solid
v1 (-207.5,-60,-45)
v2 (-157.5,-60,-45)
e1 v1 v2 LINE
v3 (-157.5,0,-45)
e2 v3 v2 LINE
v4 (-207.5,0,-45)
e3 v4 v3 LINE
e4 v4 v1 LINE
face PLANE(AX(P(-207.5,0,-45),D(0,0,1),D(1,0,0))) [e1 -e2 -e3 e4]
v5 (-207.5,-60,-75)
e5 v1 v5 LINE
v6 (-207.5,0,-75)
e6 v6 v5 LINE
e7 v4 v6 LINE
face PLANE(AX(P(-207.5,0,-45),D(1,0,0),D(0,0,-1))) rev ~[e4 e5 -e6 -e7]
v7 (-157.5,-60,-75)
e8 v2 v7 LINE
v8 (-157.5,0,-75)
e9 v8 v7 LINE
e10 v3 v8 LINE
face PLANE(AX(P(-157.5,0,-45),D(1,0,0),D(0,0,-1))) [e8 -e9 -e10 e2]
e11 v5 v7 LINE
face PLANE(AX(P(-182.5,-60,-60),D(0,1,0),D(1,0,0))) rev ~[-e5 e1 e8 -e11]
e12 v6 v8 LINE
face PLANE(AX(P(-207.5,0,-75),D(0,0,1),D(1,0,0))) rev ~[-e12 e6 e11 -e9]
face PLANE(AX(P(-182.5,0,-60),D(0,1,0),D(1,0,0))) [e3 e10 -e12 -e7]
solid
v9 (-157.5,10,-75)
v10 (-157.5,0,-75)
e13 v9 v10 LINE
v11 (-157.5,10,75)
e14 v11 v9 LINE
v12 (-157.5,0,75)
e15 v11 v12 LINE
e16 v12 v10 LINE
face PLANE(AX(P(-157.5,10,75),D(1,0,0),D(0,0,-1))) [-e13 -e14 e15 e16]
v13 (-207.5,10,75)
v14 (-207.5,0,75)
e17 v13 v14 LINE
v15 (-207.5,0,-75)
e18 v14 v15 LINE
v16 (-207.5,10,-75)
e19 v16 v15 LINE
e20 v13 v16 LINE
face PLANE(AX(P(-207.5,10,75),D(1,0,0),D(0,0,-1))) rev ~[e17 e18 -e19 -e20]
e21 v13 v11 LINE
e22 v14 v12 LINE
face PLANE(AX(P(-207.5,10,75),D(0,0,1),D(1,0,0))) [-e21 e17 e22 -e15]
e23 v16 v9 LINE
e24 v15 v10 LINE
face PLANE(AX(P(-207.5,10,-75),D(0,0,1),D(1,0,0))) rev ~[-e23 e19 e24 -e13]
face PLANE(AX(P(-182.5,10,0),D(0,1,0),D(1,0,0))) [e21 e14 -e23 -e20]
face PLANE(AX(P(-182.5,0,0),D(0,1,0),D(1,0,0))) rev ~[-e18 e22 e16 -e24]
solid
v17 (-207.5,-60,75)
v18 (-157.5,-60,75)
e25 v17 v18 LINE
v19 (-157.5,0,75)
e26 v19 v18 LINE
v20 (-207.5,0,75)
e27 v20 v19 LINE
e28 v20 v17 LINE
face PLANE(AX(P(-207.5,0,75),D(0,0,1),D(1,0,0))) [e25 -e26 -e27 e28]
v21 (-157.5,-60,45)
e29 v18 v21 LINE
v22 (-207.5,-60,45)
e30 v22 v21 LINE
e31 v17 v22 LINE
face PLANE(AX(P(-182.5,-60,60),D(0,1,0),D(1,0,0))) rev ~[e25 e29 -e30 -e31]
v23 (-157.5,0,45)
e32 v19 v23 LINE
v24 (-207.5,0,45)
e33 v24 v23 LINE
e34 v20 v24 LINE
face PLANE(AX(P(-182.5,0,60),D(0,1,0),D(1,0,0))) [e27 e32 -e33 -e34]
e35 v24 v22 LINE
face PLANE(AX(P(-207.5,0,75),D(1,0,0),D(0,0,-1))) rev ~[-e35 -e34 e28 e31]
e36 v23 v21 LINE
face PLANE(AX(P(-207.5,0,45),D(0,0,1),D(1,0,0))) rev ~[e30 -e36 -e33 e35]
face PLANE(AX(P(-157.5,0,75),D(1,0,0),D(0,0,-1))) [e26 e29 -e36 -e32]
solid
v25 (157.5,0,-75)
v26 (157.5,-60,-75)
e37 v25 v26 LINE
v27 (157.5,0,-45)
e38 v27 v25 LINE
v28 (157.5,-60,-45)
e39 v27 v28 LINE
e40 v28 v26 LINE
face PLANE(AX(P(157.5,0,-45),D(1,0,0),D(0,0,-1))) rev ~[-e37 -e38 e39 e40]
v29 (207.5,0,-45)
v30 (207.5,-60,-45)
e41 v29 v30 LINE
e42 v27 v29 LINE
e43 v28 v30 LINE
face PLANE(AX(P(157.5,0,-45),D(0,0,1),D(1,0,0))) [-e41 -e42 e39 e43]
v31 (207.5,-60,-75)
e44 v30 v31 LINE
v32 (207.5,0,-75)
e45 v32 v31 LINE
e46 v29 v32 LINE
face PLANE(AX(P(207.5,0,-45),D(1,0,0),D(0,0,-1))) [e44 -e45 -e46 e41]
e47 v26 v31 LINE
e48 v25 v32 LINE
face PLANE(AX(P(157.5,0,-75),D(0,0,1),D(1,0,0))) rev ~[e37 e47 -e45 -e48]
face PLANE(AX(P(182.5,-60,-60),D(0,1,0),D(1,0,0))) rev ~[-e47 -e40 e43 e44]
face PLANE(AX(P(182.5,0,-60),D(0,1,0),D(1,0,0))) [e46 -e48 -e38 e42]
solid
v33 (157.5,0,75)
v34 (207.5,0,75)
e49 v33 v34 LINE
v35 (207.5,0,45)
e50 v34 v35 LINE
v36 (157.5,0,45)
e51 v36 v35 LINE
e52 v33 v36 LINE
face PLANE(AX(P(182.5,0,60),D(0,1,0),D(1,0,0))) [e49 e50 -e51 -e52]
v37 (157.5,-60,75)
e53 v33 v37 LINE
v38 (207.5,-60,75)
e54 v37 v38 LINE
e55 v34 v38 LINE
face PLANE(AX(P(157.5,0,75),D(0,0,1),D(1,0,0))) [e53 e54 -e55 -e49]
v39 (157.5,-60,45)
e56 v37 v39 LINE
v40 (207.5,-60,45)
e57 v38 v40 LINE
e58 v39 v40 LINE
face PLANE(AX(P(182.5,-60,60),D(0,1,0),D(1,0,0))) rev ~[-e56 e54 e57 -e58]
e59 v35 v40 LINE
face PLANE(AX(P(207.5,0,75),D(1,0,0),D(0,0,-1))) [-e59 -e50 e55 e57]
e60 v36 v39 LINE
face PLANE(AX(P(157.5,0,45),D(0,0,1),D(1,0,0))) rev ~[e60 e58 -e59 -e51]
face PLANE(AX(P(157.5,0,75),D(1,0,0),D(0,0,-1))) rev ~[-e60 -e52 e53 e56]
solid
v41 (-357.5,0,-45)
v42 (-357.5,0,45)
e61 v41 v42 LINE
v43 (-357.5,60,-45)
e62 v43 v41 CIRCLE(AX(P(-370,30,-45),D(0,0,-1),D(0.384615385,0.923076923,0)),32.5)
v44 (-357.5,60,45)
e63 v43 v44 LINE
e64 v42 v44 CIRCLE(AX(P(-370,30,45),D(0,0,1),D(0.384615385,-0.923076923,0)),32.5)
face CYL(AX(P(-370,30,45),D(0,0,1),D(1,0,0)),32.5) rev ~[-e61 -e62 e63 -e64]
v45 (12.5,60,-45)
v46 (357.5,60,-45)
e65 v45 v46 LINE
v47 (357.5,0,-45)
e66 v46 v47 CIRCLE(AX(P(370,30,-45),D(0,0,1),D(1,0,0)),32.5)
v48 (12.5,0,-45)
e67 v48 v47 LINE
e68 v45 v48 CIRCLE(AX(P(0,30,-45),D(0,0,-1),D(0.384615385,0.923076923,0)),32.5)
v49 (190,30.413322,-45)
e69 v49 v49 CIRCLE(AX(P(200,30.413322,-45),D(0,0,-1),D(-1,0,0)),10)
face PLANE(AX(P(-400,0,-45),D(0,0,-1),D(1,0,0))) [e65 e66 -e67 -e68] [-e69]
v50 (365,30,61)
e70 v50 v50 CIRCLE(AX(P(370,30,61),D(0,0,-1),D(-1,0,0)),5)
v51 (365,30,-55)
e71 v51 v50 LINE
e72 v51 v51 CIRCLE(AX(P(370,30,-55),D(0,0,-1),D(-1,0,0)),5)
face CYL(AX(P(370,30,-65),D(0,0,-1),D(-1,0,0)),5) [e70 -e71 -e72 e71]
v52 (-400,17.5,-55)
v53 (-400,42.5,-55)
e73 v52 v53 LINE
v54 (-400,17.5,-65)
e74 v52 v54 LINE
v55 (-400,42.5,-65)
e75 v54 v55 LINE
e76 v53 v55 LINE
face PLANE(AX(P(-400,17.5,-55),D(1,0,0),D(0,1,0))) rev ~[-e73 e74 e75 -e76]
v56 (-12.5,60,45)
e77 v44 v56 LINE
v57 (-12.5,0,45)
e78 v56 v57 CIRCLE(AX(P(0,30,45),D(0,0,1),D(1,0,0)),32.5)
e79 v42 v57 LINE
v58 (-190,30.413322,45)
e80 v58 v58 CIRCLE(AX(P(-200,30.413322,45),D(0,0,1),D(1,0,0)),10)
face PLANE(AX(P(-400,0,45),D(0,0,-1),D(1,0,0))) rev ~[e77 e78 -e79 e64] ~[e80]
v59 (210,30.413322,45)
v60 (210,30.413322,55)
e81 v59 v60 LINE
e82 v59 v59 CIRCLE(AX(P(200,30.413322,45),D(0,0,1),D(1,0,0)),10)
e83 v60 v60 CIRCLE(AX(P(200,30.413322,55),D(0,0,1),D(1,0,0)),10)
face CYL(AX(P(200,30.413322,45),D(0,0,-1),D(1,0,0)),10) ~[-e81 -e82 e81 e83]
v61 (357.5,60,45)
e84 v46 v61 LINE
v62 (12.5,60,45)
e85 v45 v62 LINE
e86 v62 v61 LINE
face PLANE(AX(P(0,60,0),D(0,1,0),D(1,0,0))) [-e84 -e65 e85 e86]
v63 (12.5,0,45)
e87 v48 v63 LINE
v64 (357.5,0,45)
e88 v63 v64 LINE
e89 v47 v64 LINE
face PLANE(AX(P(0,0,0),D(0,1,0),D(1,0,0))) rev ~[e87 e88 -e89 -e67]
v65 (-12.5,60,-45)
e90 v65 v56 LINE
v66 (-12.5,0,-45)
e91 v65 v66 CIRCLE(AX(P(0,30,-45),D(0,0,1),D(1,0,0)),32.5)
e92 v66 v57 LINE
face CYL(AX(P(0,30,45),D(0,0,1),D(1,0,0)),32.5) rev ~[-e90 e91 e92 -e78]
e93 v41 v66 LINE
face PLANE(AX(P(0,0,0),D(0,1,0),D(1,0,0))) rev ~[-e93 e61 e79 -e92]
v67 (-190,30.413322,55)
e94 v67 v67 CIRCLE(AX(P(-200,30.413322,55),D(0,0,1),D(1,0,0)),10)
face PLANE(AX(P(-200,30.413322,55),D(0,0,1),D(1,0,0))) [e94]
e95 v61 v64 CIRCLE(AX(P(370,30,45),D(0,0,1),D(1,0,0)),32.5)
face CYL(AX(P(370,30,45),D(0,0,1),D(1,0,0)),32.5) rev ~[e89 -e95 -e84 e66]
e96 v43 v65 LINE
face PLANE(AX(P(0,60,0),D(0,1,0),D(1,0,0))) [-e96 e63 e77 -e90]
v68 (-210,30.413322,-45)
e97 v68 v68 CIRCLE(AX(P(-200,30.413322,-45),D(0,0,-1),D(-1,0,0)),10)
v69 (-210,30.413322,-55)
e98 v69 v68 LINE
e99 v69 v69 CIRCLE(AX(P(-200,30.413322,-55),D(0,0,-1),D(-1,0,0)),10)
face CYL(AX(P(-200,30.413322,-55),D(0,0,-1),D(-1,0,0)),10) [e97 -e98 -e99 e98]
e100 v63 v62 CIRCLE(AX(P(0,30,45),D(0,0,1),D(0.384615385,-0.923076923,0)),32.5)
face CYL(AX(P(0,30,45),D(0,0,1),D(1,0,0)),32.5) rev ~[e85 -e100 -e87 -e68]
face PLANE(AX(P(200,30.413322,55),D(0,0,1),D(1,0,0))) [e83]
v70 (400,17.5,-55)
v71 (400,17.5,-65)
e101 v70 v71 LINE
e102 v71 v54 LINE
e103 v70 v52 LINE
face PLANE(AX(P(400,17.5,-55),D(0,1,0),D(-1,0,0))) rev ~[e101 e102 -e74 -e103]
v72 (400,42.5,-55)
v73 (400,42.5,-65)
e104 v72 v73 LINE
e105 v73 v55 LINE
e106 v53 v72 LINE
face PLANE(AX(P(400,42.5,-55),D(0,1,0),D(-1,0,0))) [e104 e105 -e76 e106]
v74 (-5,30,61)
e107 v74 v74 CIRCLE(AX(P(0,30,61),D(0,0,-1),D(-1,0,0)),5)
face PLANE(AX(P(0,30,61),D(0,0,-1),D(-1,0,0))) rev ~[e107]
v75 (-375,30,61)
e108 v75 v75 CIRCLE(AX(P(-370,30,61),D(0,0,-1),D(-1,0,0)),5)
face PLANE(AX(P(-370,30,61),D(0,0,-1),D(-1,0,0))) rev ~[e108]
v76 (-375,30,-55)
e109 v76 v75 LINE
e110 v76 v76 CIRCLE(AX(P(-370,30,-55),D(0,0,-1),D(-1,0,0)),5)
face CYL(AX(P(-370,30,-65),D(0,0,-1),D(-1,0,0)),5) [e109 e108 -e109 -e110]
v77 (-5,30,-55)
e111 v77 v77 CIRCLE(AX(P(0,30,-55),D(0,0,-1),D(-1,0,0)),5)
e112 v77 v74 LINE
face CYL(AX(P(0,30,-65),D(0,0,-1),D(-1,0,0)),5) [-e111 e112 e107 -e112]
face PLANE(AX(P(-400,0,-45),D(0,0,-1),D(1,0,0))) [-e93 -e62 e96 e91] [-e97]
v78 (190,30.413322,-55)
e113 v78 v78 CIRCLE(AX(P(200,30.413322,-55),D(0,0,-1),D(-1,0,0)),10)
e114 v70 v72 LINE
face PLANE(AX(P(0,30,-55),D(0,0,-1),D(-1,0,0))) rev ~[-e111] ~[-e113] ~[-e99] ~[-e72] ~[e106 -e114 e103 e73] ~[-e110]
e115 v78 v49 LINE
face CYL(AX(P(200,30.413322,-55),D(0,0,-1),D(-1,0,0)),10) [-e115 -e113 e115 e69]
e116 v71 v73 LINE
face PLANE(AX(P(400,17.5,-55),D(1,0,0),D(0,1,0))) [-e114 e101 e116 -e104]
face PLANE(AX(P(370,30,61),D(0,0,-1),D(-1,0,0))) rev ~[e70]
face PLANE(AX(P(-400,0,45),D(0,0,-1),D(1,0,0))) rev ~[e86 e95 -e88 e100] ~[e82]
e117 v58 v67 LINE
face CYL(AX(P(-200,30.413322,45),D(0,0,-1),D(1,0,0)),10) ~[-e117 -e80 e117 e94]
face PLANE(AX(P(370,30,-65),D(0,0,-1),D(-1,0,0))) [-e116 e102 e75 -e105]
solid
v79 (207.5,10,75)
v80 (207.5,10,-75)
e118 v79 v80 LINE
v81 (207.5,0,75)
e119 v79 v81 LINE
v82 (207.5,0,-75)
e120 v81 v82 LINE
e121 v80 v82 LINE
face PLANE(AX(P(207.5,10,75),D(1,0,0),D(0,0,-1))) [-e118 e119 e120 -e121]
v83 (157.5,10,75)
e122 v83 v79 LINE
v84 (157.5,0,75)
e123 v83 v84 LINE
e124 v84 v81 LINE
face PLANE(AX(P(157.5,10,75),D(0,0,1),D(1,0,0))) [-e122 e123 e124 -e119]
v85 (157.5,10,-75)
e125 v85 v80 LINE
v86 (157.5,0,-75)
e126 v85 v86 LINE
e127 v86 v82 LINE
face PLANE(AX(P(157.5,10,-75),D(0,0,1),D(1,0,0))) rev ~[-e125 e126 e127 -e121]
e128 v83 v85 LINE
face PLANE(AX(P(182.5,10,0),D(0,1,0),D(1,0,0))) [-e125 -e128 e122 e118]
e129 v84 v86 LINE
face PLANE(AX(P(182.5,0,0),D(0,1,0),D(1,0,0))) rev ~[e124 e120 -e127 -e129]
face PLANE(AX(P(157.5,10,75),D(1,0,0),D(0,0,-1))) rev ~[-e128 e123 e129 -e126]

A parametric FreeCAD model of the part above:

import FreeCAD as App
import Part
import Sketcher
Q = App.Units.Quantity


def add_polygon(sketch, points):
    """Adds a closed chain of lines whose ends are joined by coincident constraints."""
    first, n = sketch.GeometryCount, len(points)
    for a, b in zip(points, points[1:] + points[:1]):
        sketch.addGeometry(Part.LineSegment(App.Vector(*a, 0), App.Vector(*b, 0)), False)
    for i in range(n):
        sketch.addConstraint(Sketcher.Constraint("Coincident", first + i, 2, first + (i + 1) % n, 1))

doc = App.newDocument("Part")
body = doc.addObject("PartDesign::Body", "Body")
body.AllowCompound = True

# Sketch on XZ plane
sketch1 = doc.addObject("Sketcher::SketchObject", "Sketch")
body.addObject(sketch1)
sketch1.AttachmentSupport = (doc.XZ_Plane, [""])
sketch1.MapMode = "FlatFace"
add_polygon(sketch1, [(-400, -45), (-400, 45), (400, 45), (400, -45)])  # lines 0-3
sketch1.addConstraint([
    Sketcher.Constraint("Vertical", 0),
    Sketcher.Constraint("Horizontal", 1),
    Sketcher.Constraint("Vertical", 2),
    Sketcher.Constraint("Horizontal", 3),
    Sketcher.Constraint("Symmetric", 0, 2, 2, 2, -1, 1),
    Sketcher.Constraint("DistanceX", 1, 1, 1, 2, Q("800 mm")),
    Sketcher.Constraint("DistanceY", 0, 1, 0, 2, Q("90 mm")),
])
pad1 = doc.addObject("PartDesign::Pad", "Pad")
body.addObject(pad1)
pad1.Profile = sketch1
pad1.Length = 60
pad1.Reversed = True

# Sketch on XY plane
sketch2 = doc.addObject("Sketcher::SketchObject", "Sketch001")
body.addObject(sketch2)
sketch2.AttachmentSupport = (doc.XY_Plane, [""])
sketch2.MapMode = "FlatFace"
sketch2.AttachmentOffset = App.Placement(App.Vector(0, 0, 45), App.Rotation())
sketch2.addGeometry([
    Part.Circle(App.Vector(370, 30, 0), App.Vector(0, 0, 1), 32),
    Part.Circle(App.Vector(-370, 30, 0), App.Vector(0, 0, 1), 32),
    Part.Circle(App.Vector(0, 30, 0), App.Vector(0, 0, 1), 32),
], False)
sketch2.addConstraint([
    Sketcher.Constraint("Equal", 0, 1),
    Sketcher.Constraint("Equal", 1, 2),
    Sketcher.Constraint("Symmetric", 0, 3, 1, 3, -2),
    Sketcher.Constraint("PointOnObject", 2, 3, -2),
    Sketcher.Constraint("Horizontal", 1, 3, 2, 3),
    Sketcher.Constraint("Diameter", 0, Q("65 mm")),
    Sketcher.Constraint("DistanceX", -1, 1, 0, 3, Q("370 mm")),
    Sketcher.Constraint("DistanceY", -1, 1, 0, 3, Q("30 mm")),
])
pocket1 = doc.addObject("PartDesign::Pocket", "Pocket")
body.addObject(pocket1)
pocket1.Profile = sketch2
pocket1.Length = 110
body2 = doc.addObject("PartDesign::Body", "Body001")

# Sketch on XY plane
sketch3 = doc.addObject("Sketcher::SketchObject", "Sketch002")
body2.addObject(sketch3)
sketch3.AttachmentSupport = (doc.getObject("XY_Plane001"), [""])
sketch3.MapMode = "FlatFace"
sketch3.AttachmentOffset = App.Placement(App.Vector(0, 0, -55), App.Rotation())
add_polygon(sketch3, [(400, 42), (400, 18), (-400, 18), (-400, 42)])  # lines 0-3
sketch3.addConstraint([
    Sketcher.Constraint("Vertical", 0),
    Sketcher.Constraint("Horizontal", 1),
    Sketcher.Constraint("Vertical", 2),
    Sketcher.Constraint("Horizontal", 3),
    Sketcher.Constraint("DistanceX", 1, 2, 1, 1, Q("800 mm")),
    Sketcher.Constraint("DistanceY", 0, 2, 0, 1, Q("25 mm")),
    Sketcher.Constraint("DistanceX", -1, 1, 0, 2, Q("400 mm")),
    Sketcher.Constraint("DistanceY", -1, 1, 0, 2, Q("17.5 mm")),
])
pad2 = doc.addObject("PartDesign::Pad", "Pad001")
body2.addObject(pad2)
pad2.Profile = sketch3
pad2.Length = 10
pad2.Reversed = True
body.AllowCompound = True
doc.recompute()

boolean = doc.addObject("PartDesign::Boolean", "Boolean")
body.addObject(boolean)
boolean.Type = "Fuse"
boolean.addObjects([body2])

# Sketch on XY plane
sketch4 = doc.addObject("Sketcher::SketchObject", "Sketch003")
body.addObject(sketch4)
sketch4.AttachmentSupport = (doc.XY_Plane, [""])
sketch4.MapMode = "FlatFace"
sketch4.AttachmentOffset = App.Placement(App.Vector(0, 0, -55), App.Rotation())
sketch4.addGeometry([
    Part.Circle(App.Vector(200, 30, 0), App.Vector(0, 0, 1), 10),
    Part.Circle(App.Vector(-200, 30, 0), App.Vector(0, 0, 1), 10),
], False)
sketch4.addConstraint([
    Sketcher.Constraint("Equal", 0, 1),
    Sketcher.Constraint("Symmetric", 0, 3, 1, 3, -2),
    Sketcher.Constraint("Diameter", 0, Q("20 mm")),
    Sketcher.Constraint("DistanceX", -1, 1, 0, 3, Q("200 mm")),
    Sketcher.Constraint("DistanceY", -1, 1, 0, 3, Q("30.413322 mm")),
])
pad3 = doc.addObject("PartDesign::Pad", "Pad002")
body.addObject(pad3)
pad3.Profile = sketch4
pad3.Length = 20

# Sketch on XY plane
sketch5 = doc.addObject("Sketcher::SketchObject", "Sketch004")
body.addObject(sketch5)
sketch5.AttachmentSupport = (doc.XY_Plane, [""])
sketch5.MapMode = "FlatFace"
sketch5.AttachmentOffset = App.Placement(App.Vector(0, 0, -65), App.Rotation())
sketch5.addGeometry([
    Part.Circle(App.Vector(370, 30, 0), App.Vector(0, 0, 1), 5),
    Part.Circle(App.Vector(0, 30, 0), App.Vector(0, 0, 1), 5),
    Part.Circle(App.Vector(-370, 30, 0), App.Vector(0, 0, 1), 5),
], False)
sketch5.addConstraint([
    Sketcher.Constraint("Equal", 0, 1),
    Sketcher.Constraint("Equal", 1, 2),
    Sketcher.Constraint("Symmetric", 0, 3, 2, 3, -2),
    Sketcher.Constraint("PointOnObject", 1, 3, -2),
    Sketcher.Constraint("Horizontal", 0, 3, 1, 3),
    Sketcher.Constraint("Diameter", 0, Q("10 mm")),
    Sketcher.Constraint("DistanceX", -1, 1, 0, 3, Q("370 mm")),
    Sketcher.Constraint("DistanceY", -1, 1, 0, 3, Q("30 mm")),
])
pad4 = doc.addObject("PartDesign::Pad", "Pad003")
body.addObject(pad4)
pad4.Profile = sketch5
pad4.Length = 126

# Sketch on XY plane
sketch6 = doc.addObject("Sketcher::SketchObject", "Sketch005")
body.addObject(sketch6)
sketch6.AttachmentSupport = (doc.XY_Plane, [""])
sketch6.MapMode = "FlatFace"
sketch6.AttachmentOffset = App.Placement(App.Vector(0, 0, 45), App.Rotation())
sketch6.addGeometry([
    Part.Circle(App.Vector(-200, 30, 0), App.Vector(0, 0, 1), 10),
    Part.Circle(App.Vector(200, 30, 0), App.Vector(0, 0, 1), 10),
], False)
sketch6.addConstraint([
    Sketcher.Constraint("Equal", 0, 1),
    Sketcher.Constraint("Symmetric", 0, 3, 1, 3, -2),
    Sketcher.Constraint("Diameter", 0, Q("20 mm")),
    Sketcher.Constraint("DistanceX", 0, 3, -1, 1, Q("200 mm")),
    Sketcher.Constraint("DistanceY", -1, 1, 0, 3, Q("30.413322 mm")),
])
pad5 = doc.addObject("PartDesign::Pad", "Pad004")
body.addObject(pad5)
pad5.Profile = sketch6
pad5.Length = 10

# Sketch on XZ plane
sketch7 = doc.addObject("Sketcher::SketchObject", "Sketch006")
body.addObject(sketch7)
sketch7.AttachmentSupport = (doc.XZ_Plane, [""])
sketch7.MapMode = "FlatFace"
add_polygon(sketch7, [(376, -52), (376, 53), (415, 53), (415, -52)])  # lines 0-3
add_polygon(sketch7, [(-413, -55), (-413, 53), (-379, 53), (-379, -55)])  # lines 4-7
sketch7.addConstraint([
    Sketcher.Constraint("Vertical", 0),
    Sketcher.Constraint("Horizontal", 1),
    Sketcher.Constraint("Vertical", 2),
    Sketcher.Constraint("Horizontal", 3),
    Sketcher.Constraint("Vertical", 4),
    Sketcher.Constraint("Horizontal", 5),
    Sketcher.Constraint("Vertical", 6),
    Sketcher.Constraint("Horizontal", 7),
    Sketcher.Constraint("Horizontal", 1, 2, 4, 2),
    Sketcher.Constraint("DistanceY", 6, 2, -1, 1, Q("55 mm")),
    Sketcher.Constraint("DistanceY", 4, 1, 4, 2, Q("108.38535 mm")),
    Sketcher.Constraint("DistanceX", 1, 1, 1, 2, Q("38.258946 mm")),
    Sketcher.Constraint("DistanceX", 5, 1, 5, 2, Q("34.499867 mm")),
    Sketcher.Constraint("DistanceY", 0, 1, 0, 2, Q("105.501943 mm")),
    Sketcher.Constraint("DistanceX", -1, 1, 1, 2, Q("414.71685 mm")),
    Sketcher.Constraint("DistanceX", 5, 2, 0, 2, Q("754.962209 mm")),
])
pocket2 = doc.addObject("PartDesign::Pocket", "Pocket001")
body.addObject(pocket2)
pocket2.Profile = sketch7
pocket2.Length = 100
body3 = doc.addObject("PartDesign::Body", "Body002")

# Sketch on XZ plane
sketch8 = doc.addObject("Sketcher::SketchObject", "Sketch007")
body3.addObject(sketch8)
sketch8.AttachmentSupport = (doc.getObject("XZ_Plane002"), [""])
sketch8.MapMode = "FlatFace"
sketch8.AttachmentOffset = App.Placement(App.Vector(0, 0, -10), App.Rotation())
add_polygon(sketch8, [(158, -75), (158, 75), (208, 75), (208, -75)])  # lines 0-3
sketch8.addConstraint([
    Sketcher.Constraint("Vertical", 0),
    Sketcher.Constraint("Horizontal", 1),
    Sketcher.Constraint("Vertical", 2),
    Sketcher.Constraint("Horizontal", 3),
    Sketcher.Constraint("DistanceX", 1, 1, 1, 2, Q("50 mm")),
    Sketcher.Constraint("DistanceY", 0, 1, 0, 2, Q("150 mm")),
    Sketcher.Constraint("DistanceY", -1, 1, 0, 2, Q("75 mm")),
    Sketcher.Constraint("DistanceX", -1, 1, 0, 2, Q("157.5 mm")),
])
pad6 = doc.addObject("PartDesign::Pad", "Pad005")
body3.addObject(pad6)
pad6.Profile = sketch8
pad6.Length = 10
body4 = doc.addObject("PartDesign::Body", "Body003")

# Sketch on XZ plane
sketch9 = doc.addObject("Sketcher::SketchObject", "Sketch008")
body4.addObject(sketch9)
sketch9.AttachmentSupport = (doc.getObject("XZ_Plane003"), [""])
sketch9.MapMode = "FlatFace"
sketch9.AttachmentOffset = App.Placement(App.Vector(0, 0, -10), App.Rotation())
add_polygon(sketch9, [(-208, -75), (-208, 75), (-158, 75), (-158, -75)])  # lines 0-3
sketch9.addConstraint([
    Sketcher.Constraint("Vertical", 0),
    Sketcher.Constraint("Horizontal", 1),
    Sketcher.Constraint("Vertical", 2),
    Sketcher.Constraint("Horizontal", 3),
    Sketcher.Constraint("DistanceX", 1, 1, 1, 2, Q("50 mm")),
    Sketcher.Constraint("DistanceY", 0, 1, 0, 2, Q("150 mm")),
    Sketcher.Constraint("DistanceY", -1, 1, 0, 2, Q("75 mm")),
    Sketcher.Constraint("DistanceX", 0, 2, -1, 1, Q("207.5 mm")),
])
pad7 = doc.addObject("PartDesign::Pad", "Pad006")
body4.addObject(pad7)
pad7.Profile = sketch9
pad7.Length = 10
body5 = doc.addObject("PartDesign::Body", "Body004")

# Sketch on XZ plane
sketch10 = doc.addObject("Sketcher::SketchObject", "Sketch009")
body5.addObject(sketch10)
sketch10.AttachmentSupport = (doc.getObject("XZ_Plane004"), [""])
sketch10.MapMode = "FlatFace"
add_polygon(sketch10, [(-208, 45), (-208, 75), (-158, 75), (-158, 45)])  # lines 0-3
sketch10.addConstraint([
    Sketcher.Constraint("Vertical", 0),
    Sketcher.Constraint("Horizontal", 1),
    Sketcher.Constraint("Vertical", 2),
    Sketcher.Constraint("Horizontal", 3),
    Sketcher.Constraint("DistanceX", 1, 1, 1, 2, Q("50 mm")),
    Sketcher.Constraint("DistanceY", 0, 1, 0, 2, Q("30 mm")),
    Sketcher.Constraint("DistanceY", -1, 1, 0, 2, Q("75 mm")),
    Sketcher.Constraint("DistanceX", 0, 2, -1, 1, Q("207.5 mm")),
])
pad8 = doc.addObject("PartDesign::Pad", "Pad007")
body5.addObject(pad8)
pad8.Profile = sketch10
pad8.Length = 60
body6 = doc.addObject("PartDesign::Body", "Body005")

# Sketch on XZ plane
sketch11 = doc.addObject("Sketcher::SketchObject", "Sketch010")
body6.addObject(sketch11)
sketch11.AttachmentSupport = (doc.getObject("XZ_Plane005"), [""])
sketch11.MapMode = "FlatFace"
add_polygon(sketch11, [(-208, -75), (-208, -45), (-158, -45), (-158, -75)])  # lines 0-3
sketch11.addConstraint([
    Sketcher.Constraint("Vertical", 0),
    Sketcher.Constraint("Horizontal", 1),
    Sketcher.Constraint("Vertical", 2),
    Sketcher.Constraint("Horizontal", 3),
    Sketcher.Constraint("DistanceX", 1, 1, 1, 2, Q("50 mm")),
    Sketcher.Constraint("DistanceY", 0, 1, 0, 2, Q("30 mm")),
    Sketcher.Constraint("DistanceY", 0, 2, -1, 1, Q("45 mm")),
    Sketcher.Constraint("DistanceX", 0, 2, -1, 1, Q("207.5 mm")),
])
pad9 = doc.addObject("PartDesign::Pad", "Pad008")
body6.addObject(pad9)
pad9.Profile = sketch11
pad9.Length = 60
body7 = doc.addObject("PartDesign::Body", "Body006")

# Sketch on XZ plane
sketch12 = doc.addObject("Sketcher::SketchObject", "Sketch011")
body7.addObject(sketch12)
sketch12.AttachmentSupport = (doc.getObject("XZ_Plane006"), [""])
sketch12.MapMode = "FlatFace"
add_polygon(sketch12, [(158, -75), (158, -45), (208, -45), (208, -75)])  # lines 0-3
sketch12.addConstraint([
    Sketcher.Constraint("Vertical", 0),
    Sketcher.Constraint("Horizontal", 1),
    Sketcher.Constraint("Vertical", 2),
    Sketcher.Constraint("Horizontal", 3),
    Sketcher.Constraint("DistanceX", 1, 1, 1, 2, Q("50 mm")),
    Sketcher.Constraint("DistanceY", 0, 1, 0, 2, Q("30 mm")),
    Sketcher.Constraint("DistanceY", 0, 2, -1, 1, Q("45 mm")),
    Sketcher.Constraint("DistanceX", -1, 1, 0, 2, Q("157.5 mm")),
])
pad10 = doc.addObject("PartDesign::Pad", "Pad009")
body7.addObject(pad10)
pad10.Profile = sketch12
pad10.Length = 60
body8 = doc.addObject("PartDesign::Body", "Body007")

# Sketch on XZ plane
sketch13 = doc.addObject("Sketcher::SketchObject", "Sketch012")
body8.addObject(sketch13)
sketch13.AttachmentSupport = (doc.getObject("XZ_Plane007"), [""])
sketch13.MapMode = "FlatFace"
add_polygon(sketch13, [(158, 45), (158, 75), (208, 75), (208, 45)])  # lines 0-3
sketch13.addConstraint([
    Sketcher.Constraint("Vertical", 0),
    Sketcher.Constraint("Horizontal", 1),
    Sketcher.Constraint("Vertical", 2),
    Sketcher.Constraint("Horizontal", 3),
    Sketcher.Constraint("DistanceX", 1, 1, 1, 2, Q("50 mm")),
    Sketcher.Constraint("DistanceY", 0, 1, 0, 2, Q("30 mm")),
    Sketcher.Constraint("DistanceY", -1, 1, 0, 2, Q("75 mm")),
    Sketcher.Constraint("DistanceX", -1, 1, 0, 2, Q("157.5 mm")),
])
pad11 = doc.addObject("PartDesign::Pad", "Pad010")
body8.addObject(pad11)
pad11.Profile = sketch13
pad11.Length = 60

doc.recompute()
